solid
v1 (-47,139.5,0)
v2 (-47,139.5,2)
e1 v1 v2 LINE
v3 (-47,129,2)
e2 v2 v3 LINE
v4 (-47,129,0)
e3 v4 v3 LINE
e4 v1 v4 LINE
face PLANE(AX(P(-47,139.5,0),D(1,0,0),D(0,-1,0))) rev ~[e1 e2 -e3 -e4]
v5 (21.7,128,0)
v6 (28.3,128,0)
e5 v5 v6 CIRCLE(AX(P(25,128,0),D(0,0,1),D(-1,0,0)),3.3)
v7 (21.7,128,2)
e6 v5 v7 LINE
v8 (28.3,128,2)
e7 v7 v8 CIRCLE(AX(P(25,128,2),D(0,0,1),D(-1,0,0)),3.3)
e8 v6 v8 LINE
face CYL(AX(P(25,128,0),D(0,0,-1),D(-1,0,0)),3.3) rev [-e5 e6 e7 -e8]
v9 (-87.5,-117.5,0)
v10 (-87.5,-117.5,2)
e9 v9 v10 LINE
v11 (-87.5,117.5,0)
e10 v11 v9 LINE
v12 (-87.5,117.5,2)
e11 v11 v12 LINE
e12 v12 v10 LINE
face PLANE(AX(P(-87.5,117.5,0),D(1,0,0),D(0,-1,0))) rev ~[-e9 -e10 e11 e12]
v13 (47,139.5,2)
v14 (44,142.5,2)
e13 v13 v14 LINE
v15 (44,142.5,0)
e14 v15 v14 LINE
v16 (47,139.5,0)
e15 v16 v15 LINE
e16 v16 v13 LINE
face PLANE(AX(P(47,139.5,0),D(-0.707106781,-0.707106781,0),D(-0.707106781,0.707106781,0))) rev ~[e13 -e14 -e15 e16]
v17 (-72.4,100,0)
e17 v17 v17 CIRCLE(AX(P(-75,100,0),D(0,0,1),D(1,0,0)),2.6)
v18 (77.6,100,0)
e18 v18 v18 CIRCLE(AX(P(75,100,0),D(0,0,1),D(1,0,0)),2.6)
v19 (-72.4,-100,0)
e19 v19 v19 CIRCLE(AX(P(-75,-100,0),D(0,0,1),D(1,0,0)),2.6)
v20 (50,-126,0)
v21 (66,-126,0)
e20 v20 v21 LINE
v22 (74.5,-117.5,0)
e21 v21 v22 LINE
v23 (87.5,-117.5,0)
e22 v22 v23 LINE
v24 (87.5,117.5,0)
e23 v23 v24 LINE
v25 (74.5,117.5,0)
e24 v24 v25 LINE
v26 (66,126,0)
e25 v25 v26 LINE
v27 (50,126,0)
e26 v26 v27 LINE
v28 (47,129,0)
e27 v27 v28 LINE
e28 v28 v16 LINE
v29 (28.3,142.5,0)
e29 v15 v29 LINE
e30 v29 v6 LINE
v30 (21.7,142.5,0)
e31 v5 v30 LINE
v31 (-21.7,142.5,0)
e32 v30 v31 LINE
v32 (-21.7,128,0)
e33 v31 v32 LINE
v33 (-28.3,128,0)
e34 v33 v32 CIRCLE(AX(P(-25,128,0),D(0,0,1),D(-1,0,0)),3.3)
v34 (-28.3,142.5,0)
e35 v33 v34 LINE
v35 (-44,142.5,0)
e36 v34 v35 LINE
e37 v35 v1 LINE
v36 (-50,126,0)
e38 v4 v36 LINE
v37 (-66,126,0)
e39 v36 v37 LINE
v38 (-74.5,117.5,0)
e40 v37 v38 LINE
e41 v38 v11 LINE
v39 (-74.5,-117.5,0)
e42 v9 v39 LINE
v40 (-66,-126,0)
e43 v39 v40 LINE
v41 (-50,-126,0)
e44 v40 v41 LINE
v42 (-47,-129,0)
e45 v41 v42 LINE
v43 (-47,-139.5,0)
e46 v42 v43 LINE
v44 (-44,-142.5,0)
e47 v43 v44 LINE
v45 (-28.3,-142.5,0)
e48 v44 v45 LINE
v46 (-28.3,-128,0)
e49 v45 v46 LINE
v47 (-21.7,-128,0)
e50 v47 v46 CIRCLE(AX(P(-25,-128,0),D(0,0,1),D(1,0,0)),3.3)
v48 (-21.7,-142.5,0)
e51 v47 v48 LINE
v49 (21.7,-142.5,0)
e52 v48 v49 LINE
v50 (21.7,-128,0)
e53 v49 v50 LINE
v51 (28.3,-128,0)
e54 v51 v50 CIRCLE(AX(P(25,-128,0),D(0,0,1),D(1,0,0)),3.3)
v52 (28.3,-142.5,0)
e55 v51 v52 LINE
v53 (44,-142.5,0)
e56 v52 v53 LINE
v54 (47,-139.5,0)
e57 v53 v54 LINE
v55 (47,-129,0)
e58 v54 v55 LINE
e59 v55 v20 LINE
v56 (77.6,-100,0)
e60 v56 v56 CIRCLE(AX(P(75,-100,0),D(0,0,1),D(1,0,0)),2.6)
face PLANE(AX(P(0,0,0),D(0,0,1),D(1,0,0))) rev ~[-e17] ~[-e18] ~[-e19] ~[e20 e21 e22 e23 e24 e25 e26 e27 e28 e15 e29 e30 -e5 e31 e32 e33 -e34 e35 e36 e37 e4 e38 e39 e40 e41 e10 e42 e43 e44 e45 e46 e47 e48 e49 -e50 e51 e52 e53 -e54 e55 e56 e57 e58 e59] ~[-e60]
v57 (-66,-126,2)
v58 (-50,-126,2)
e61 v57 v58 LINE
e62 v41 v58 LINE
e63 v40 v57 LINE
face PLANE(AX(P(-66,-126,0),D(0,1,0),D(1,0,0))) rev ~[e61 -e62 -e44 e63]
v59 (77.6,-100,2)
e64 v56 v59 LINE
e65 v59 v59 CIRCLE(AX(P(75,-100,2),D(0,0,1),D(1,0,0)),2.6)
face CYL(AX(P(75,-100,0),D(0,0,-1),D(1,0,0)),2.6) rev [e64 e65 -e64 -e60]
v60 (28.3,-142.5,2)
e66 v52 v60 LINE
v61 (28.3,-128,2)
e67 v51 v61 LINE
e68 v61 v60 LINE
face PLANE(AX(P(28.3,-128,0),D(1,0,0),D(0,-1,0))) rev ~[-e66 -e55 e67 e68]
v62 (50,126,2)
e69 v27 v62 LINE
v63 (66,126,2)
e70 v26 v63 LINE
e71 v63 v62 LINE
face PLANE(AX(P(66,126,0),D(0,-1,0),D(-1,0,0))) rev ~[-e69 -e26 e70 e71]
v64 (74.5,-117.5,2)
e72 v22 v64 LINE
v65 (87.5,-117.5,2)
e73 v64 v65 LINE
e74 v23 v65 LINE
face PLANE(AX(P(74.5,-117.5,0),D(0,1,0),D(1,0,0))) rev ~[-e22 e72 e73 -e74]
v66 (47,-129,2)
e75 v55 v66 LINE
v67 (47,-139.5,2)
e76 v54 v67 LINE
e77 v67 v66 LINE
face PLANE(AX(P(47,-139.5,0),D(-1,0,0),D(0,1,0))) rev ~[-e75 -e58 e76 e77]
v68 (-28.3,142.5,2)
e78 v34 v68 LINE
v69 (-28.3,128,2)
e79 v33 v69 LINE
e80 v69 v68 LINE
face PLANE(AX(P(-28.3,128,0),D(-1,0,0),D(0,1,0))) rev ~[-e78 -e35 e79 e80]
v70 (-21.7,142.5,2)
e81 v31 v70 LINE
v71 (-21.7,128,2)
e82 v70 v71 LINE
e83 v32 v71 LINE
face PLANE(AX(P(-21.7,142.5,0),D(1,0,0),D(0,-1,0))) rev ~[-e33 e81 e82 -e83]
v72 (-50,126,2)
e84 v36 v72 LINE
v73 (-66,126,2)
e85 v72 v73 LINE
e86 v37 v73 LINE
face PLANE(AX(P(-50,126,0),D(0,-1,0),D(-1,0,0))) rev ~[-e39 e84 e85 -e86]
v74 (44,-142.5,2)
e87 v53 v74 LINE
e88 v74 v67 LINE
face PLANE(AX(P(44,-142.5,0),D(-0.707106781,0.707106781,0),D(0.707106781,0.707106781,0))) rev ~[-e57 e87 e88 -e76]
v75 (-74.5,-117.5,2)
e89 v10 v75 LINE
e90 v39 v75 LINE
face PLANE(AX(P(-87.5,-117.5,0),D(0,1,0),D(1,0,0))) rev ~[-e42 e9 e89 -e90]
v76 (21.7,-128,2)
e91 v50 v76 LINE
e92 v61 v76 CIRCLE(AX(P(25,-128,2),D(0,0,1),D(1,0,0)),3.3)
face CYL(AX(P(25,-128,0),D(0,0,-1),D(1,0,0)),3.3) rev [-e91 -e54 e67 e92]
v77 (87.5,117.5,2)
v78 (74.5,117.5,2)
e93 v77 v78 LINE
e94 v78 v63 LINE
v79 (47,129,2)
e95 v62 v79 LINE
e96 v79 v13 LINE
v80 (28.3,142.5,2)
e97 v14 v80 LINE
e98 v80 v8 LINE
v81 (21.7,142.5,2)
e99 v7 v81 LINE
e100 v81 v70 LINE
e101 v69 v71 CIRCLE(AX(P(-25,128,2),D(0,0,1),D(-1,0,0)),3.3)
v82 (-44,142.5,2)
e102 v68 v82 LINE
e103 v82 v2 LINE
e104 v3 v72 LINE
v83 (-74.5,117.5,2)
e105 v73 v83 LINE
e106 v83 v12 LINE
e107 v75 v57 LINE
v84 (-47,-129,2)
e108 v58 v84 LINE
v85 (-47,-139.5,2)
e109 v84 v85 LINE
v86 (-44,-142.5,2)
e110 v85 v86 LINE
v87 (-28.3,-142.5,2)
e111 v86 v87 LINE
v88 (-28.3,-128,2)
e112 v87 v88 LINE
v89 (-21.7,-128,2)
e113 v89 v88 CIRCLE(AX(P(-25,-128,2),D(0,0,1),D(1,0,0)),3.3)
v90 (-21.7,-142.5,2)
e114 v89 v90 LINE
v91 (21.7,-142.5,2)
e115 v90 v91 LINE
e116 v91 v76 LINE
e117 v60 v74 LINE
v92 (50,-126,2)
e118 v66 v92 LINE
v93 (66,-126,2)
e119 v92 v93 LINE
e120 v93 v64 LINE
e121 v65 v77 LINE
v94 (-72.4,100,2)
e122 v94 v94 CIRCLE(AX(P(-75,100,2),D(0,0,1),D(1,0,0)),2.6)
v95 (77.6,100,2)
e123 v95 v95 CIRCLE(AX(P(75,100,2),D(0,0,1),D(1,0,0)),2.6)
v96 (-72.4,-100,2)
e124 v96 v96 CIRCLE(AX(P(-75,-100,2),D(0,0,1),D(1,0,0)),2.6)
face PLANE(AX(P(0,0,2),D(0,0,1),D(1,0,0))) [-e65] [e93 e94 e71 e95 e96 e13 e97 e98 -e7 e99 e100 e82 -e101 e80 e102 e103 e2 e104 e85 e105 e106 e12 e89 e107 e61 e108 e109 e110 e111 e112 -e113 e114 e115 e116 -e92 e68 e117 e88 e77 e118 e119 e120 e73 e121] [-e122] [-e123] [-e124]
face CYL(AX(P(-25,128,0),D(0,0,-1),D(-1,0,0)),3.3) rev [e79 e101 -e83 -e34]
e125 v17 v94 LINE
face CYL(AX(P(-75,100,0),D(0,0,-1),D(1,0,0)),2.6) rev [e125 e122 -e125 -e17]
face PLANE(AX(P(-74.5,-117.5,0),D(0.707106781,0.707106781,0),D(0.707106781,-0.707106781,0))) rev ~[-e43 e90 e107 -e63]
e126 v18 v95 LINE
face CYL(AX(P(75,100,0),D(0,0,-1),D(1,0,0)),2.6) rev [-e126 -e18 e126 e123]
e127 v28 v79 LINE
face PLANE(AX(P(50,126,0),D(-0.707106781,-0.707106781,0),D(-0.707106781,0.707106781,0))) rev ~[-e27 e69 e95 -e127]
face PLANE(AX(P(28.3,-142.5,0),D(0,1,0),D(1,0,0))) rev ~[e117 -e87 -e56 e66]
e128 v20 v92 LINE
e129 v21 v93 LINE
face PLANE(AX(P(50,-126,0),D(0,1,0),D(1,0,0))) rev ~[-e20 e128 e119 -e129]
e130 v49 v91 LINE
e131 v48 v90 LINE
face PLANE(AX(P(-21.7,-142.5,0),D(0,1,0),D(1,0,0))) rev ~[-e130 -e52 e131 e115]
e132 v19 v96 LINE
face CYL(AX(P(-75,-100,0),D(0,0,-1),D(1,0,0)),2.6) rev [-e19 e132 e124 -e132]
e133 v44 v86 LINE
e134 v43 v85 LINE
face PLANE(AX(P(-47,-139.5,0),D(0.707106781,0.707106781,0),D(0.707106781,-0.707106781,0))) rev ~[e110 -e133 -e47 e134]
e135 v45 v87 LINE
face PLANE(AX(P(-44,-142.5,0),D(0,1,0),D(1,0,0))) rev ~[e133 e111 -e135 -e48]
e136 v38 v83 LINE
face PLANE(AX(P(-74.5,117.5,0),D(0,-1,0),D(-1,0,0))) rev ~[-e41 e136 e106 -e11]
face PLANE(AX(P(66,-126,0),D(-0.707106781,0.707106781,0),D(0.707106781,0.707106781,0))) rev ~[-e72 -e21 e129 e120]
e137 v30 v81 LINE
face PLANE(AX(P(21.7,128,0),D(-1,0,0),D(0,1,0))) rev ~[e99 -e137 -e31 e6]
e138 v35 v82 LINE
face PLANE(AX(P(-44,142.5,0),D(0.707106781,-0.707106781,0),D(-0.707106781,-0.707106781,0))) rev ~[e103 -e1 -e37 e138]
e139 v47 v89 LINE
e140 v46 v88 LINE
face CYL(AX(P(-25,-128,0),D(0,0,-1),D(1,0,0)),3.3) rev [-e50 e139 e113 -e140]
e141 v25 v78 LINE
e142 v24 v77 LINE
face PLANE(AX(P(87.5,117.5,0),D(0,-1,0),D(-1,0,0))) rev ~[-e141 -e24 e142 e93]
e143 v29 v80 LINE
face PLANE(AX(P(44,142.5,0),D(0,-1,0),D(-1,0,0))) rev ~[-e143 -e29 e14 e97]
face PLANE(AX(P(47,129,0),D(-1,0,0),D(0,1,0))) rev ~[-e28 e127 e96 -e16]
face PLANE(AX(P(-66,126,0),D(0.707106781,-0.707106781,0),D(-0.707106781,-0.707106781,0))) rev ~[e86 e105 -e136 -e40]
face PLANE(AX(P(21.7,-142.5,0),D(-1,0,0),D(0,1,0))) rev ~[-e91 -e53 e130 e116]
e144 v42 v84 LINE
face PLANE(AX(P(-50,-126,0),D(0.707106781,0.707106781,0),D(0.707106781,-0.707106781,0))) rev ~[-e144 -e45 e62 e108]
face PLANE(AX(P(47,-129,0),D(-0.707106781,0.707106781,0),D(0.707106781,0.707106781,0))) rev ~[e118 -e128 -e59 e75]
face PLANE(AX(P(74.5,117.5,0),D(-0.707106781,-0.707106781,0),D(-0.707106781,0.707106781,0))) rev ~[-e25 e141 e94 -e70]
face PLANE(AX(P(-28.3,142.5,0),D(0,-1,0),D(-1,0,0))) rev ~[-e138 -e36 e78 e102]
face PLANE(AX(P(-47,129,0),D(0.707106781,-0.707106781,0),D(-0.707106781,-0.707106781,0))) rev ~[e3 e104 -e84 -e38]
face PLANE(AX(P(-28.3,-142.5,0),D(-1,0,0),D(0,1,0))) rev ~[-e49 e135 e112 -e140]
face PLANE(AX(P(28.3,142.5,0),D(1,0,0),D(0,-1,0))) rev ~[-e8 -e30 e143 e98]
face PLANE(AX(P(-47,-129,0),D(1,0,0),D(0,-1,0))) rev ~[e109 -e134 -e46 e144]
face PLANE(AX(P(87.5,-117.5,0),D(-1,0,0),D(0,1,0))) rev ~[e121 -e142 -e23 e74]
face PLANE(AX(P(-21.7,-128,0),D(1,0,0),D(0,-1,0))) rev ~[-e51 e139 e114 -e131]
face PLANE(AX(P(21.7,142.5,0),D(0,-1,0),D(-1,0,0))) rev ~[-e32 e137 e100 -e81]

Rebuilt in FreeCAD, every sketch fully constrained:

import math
import FreeCAD as App
import Part
import Sketcher
Q = App.Units.Quantity

doc = App.newDocument("Part")
body = doc.addObject("PartDesign::Body", "Body")

# Sketch on XY plane
sketch1 = body.newObject("Sketcher::SketchObject", "Sketch")
sketch1.AttachmentSupport = (doc.getObject("XY_Plane"), [""])
sketch1.MapMode = "FlatFace"
sketch1.addGeometry([
    Part.LineSegment(App.Vector(-74.5, 117.5, 0), App.Vector(-87.5, 117.5, 0)),  # 0
    Part.LineSegment(App.Vector(-87.5, 117.5, 0), App.Vector(-87.5, -117.5, 0)),  # 1
    Part.LineSegment(App.Vector(-87.5, -117.5, 0), App.Vector(-74.5, -117.5, 0)),  # 2
    Part.LineSegment(App.Vector(-74.5, -117.5, 0), App.Vector(-66, -126, 0)),  # 3
    Part.LineSegment(App.Vector(-66, -126, 0), App.Vector(-50, -126, 0)),  # 4
    Part.LineSegment(App.Vector(-50, -126, 0), App.Vector(-47, -129, 0)),  # 5
    Part.LineSegment(App.Vector(-47, -129, 0), App.Vector(-47, -139.5, 0)),  # 6
    Part.LineSegment(App.Vector(-47, -139.5, 0), App.Vector(-44, -142.5, 0)),  # 7
    Part.LineSegment(App.Vector(-44, -142.5, 0), App.Vector(-28.3, -142.5, 0)),  # 8
    Part.LineSegment(App.Vector(-28.3, -142.5, 0), App.Vector(-28.3, -128, 0)),  # 9
    Part.ArcOfCircle(Part.Circle(App.Vector(-25, -128, 0), App.Vector(0, 0, 1), 3.3), math.radians(0), math.radians(180)),  # 10
    Part.LineSegment(App.Vector(-21.7, -128, 0), App.Vector(-21.7, -142.5, 0)),  # 11
    Part.LineSegment(App.Vector(-21.7, -142.5, 0), App.Vector(21.7, -142.5, 0)),  # 12
    Part.LineSegment(App.Vector(21.7, -142.5, 0), App.Vector(21.7, -128, 0)),  # 13
    Part.ArcOfCircle(Part.Circle(App.Vector(25, -128, 0), App.Vector(0, 0, 1), 3.3), math.radians(0), math.radians(180)),  # 14
    Part.LineSegment(App.Vector(28.3, -128, 0), App.Vector(28.3, -142.5, 0)),  # 15
    Part.LineSegment(App.Vector(28.3, -142.5, 0), App.Vector(44, -142.5, 0)),  # 16
    Part.LineSegment(App.Vector(44, -142.5, 0), App.Vector(47, -139.5, 0)),  # 17
    Part.LineSegment(App.Vector(47, -139.5, 0), App.Vector(47, -129, 0)),  # 18
    Part.LineSegment(App.Vector(47, -129, 0), App.Vector(50, -126, 0)),  # 19
    Part.LineSegment(App.Vector(50, -126, 0), App.Vector(66, -126, 0)),  # 20
    Part.LineSegment(App.Vector(66, -126, 0), App.Vector(74.5, -117.5, 0)),  # 21
    Part.LineSegment(App.Vector(74.5, -117.5, 0), App.Vector(87.5, -117.5, 0)),  # 22
    Part.LineSegment(App.Vector(87.5, -117.5, 0), App.Vector(87.5, 117.5, 0)),  # 23
    Part.LineSegment(App.Vector(87.5, 117.5, 0), App.Vector(74.5, 117.5, 0)),  # 24
    Part.LineSegment(App.Vector(74.5, 117.5, 0), App.Vector(66, 126, 0)),  # 25
    Part.LineSegment(App.Vector(66, 126, 0), App.Vector(50, 126, 0)),  # 26
    Part.LineSegment(App.Vector(50, 126, 0), App.Vector(47, 129, 0)),  # 27
    Part.LineSegment(App.Vector(47, 129, 0), App.Vector(47, 139.5, 0)),  # 28
    Part.LineSegment(App.Vector(47, 139.5, 0), App.Vector(44, 142.5, 0)),  # 29
    Part.LineSegment(App.Vector(44, 142.5, 0), App.Vector(28.3, 142.5, 0)),  # 30
    Part.LineSegment(App.Vector(28.3, 142.5, 0), App.Vector(28.3, 128, 0)),  # 31
    Part.ArcOfCircle(Part.Circle(App.Vector(25, 128, 0), App.Vector(0, 0, 1), 3.3), math.radians(180), math.radians(360)),  # 32
    Part.LineSegment(App.Vector(21.7, 128, 0), App.Vector(21.7, 142.5, 0)),  # 33
    Part.LineSegment(App.Vector(21.7, 142.5, 0), App.Vector(-21.7, 142.5, 0)),  # 34
    Part.LineSegment(App.Vector(-21.7, 142.5, 0), App.Vector(-21.7, 128, 0)),  # 35
    Part.ArcOfCircle(Part.Circle(App.Vector(-25, 128, 0), App.Vector(0, 0, 1), 3.3), math.radians(180), math.radians(360)),  # 36
    Part.LineSegment(App.Vector(-28.3, 128, 0), App.Vector(-28.3, 142.5, 0)),  # 37
    Part.LineSegment(App.Vector(-28.3, 142.5, 0), App.Vector(-44, 142.5, 0)),  # 38
    Part.LineSegment(App.Vector(-44, 142.5, 0), App.Vector(-47, 139.5, 0)),  # 39
    Part.LineSegment(App.Vector(-47, 139.5, 0), App.Vector(-47, 129, 0)),  # 40
    Part.LineSegment(App.Vector(-47, 129, 0), App.Vector(-50, 126, 0)),  # 41
    Part.LineSegment(App.Vector(-50, 126, 0), App.Vector(-66, 126, 0)),  # 42
    Part.LineSegment(App.Vector(-66, 126, 0), App.Vector(-74.5, 117.5, 0)),  # 43
    Part.Circle(App.Vector(-75, -100, 0), App.Vector(0, 0, 1), 2.6),  # 44
    Part.Circle(App.Vector(75, -100, 0), App.Vector(0, 0, 1), 2.6),  # 45
    Part.Circle(App.Vector(-75, 100, 0), App.Vector(0, 0, 1), 2.6),  # 46
    Part.Circle(App.Vector(75, 100, 0), App.Vector(0, 0, 1), 2.6),  # 47
], False)
sketch1.addConstraint([
    Sketcher.Constraint("Coincident", 0, 2, 1, 1),
    Sketcher.Constraint("Coincident", 1, 2, 2, 1),
    Sketcher.Constraint("Coincident", 2, 2, 3, 1),
    Sketcher.Constraint("Coincident", 3, 2, 4, 1),
    Sketcher.Constraint("Coincident", 4, 2, 5, 1),
    Sketcher.Constraint("Coincident", 5, 2, 6, 1),
    Sketcher.Constraint("Coincident", 6, 2, 7, 1),
    Sketcher.Constraint("Coincident", 7, 2, 8, 1),
    Sketcher.Constraint("Coincident", 8, 2, 9, 1),
    Sketcher.Constraint("Tangent", 9, 2, 10, 2),
    Sketcher.Constraint("Tangent", 10, 1, 11, 1),
    Sketcher.Constraint("Coincident", 11, 2, 12, 1),
    Sketcher.Constraint("Coincident", 12, 2, 13, 1),
    Sketcher.Constraint("Tangent", 13, 2, 14, 2),
    Sketcher.Constraint("Tangent", 14, 1, 15, 1),
    Sketcher.Constraint("Coincident", 15, 2, 16, 1),
    Sketcher.Constraint("Coincident", 16, 2, 17, 1),
    Sketcher.Constraint("Coincident", 17, 2, 18, 1),
    Sketcher.Constraint("Coincident", 18, 2, 19, 1),
    Sketcher.Constraint("Coincident", 19, 2, 20, 1),
    Sketcher.Constraint("Coincident", 20, 2, 21, 1),
    Sketcher.Constraint("Coincident", 21, 2, 22, 1),
    Sketcher.Constraint("Coincident", 22, 2, 23, 1),
    Sketcher.Constraint("Coincident", 23, 2, 24, 1),
    Sketcher.Constraint("Coincident", 24, 2, 25, 1),
    Sketcher.Constraint("Coincident", 25, 2, 26, 1),
    Sketcher.Constraint("Coincident", 26, 2, 27, 1),
    Sketcher.Constraint("Coincident", 27, 2, 28, 1),
    Sketcher.Constraint("Coincident", 28, 2, 29, 1),
    Sketcher.Constraint("Coincident", 29, 2, 30, 1),
    Sketcher.Constraint("Coincident", 30, 2, 31, 1),
    Sketcher.Constraint("Tangent", 31, 2, 32, 2),
    Sketcher.Constraint("Tangent", 32, 1, 33, 1),
    Sketcher.Constraint("Coincident", 33, 2, 34, 1),
    Sketcher.Constraint("Coincident", 34, 2, 35, 1),
    Sketcher.Constraint("Tangent", 35, 2, 36, 2),
    Sketcher.Constraint("Tangent", 36, 1, 37, 1),
    Sketcher.Constraint("Coincident", 37, 2, 38, 1),
    Sketcher.Constraint("Coincident", 38, 2, 39, 1),
    Sketcher.Constraint("Coincident", 39, 2, 40, 1),
    Sketcher.Constraint("Coincident", 40, 2, 41, 1),
    Sketcher.Constraint("Coincident", 41, 2, 42, 1),
    Sketcher.Constraint("Coincident", 42, 2, 43, 1),
    Sketcher.Constraint("Coincident", 43, 2, 0, 1),
    Sketcher.Constraint("Horizontal", 0),
    Sketcher.Constraint("Vertical", 1),
    Sketcher.Constraint("Horizontal", 2),
    Sketcher.Constraint("Horizontal", 4),
    Sketcher.Constraint("Vertical", 6),
    Sketcher.Constraint("Horizontal", 8),
    Sketcher.Constraint("Vertical", 9),
    Sketcher.Constraint("Vertical", 11),
    Sketcher.Constraint("Horizontal", 12),
    Sketcher.Constraint("Vertical", 13),
    Sketcher.Constraint("Vertical", 15),
    Sketcher.Constraint("Horizontal", 16),
    Sketcher.Constraint("Vertical", 18),
    Sketcher.Constraint("Horizontal", 20),
    Sketcher.Constraint("Horizontal", 22),
    Sketcher.Constraint("Vertical", 23),
    Sketcher.Constraint("Horizontal", 24),
    Sketcher.Constraint("Horizontal", 26),
    Sketcher.Constraint("Vertical", 28),
    Sketcher.Constraint("Horizontal", 30),
    Sketcher.Constraint("Vertical", 31),
    Sketcher.Constraint("Vertical", 33),
    Sketcher.Constraint("Horizontal", 34),
    Sketcher.Constraint("Vertical", 35),
    Sketcher.Constraint("Vertical", 37),
    Sketcher.Constraint("Horizontal", 38),
    Sketcher.Constraint("Vertical", 40),
    Sketcher.Constraint("Horizontal", 42),
    Sketcher.Constraint("Equal", 10, 14),
    Sketcher.Constraint("Equal", 14, 32),
    Sketcher.Constraint("Equal", 32, 36),
    Sketcher.Constraint("Equal", 44, 45),
    Sketcher.Constraint("Equal", 45, 46),
    Sketcher.Constraint("Equal", 46, 47),
    Sketcher.Constraint("Symmetric", 10, 3, 32, 3, -1, 1),
    Sketcher.Constraint("Symmetric", 14, 3, 36, 3, -1, 1),
    Sketcher.Constraint("Symmetric", 45, 3, 46, 3, -1, 1),
    Sketcher.Constraint("Symmetric", 44, 3, 47, 3, -1, 1),
    Sketcher.Constraint("Symmetric", 0, 2, 22, 2, -1, 1),
    Sketcher.Constraint("Symmetric", 2, 2, 24, 2, -1, 1),
    Sketcher.Constraint("Symmetric", 3, 2, 25, 2, -1, 1),
    Sketcher.Constraint("Symmetric", 5, 2, 27, 2, -1, 1),
    Sketcher.Constraint("Symmetric", 7, 2, 29, 2, -1, 1),
    Sketcher.Constraint("Symmetric", 16, 2, 38, 2, -1, 1),
    Sketcher.Constraint("Symmetric", 17, 2, 39, 2, -1, 1),
    Sketcher.Constraint("Symmetric", 19, 2, 41, 2, -1, 1),
    Sketcher.Constraint("Symmetric", 10, 3, 14, 3, -2),
    Sketcher.Constraint("Symmetric", 44, 3, 45, 3, -2),
    Sketcher.Constraint("Symmetric", 7, 2, 16, 2, -2),
    Sketcher.Constraint("Symmetric", 6, 2, 17, 2, -2),
    Sketcher.Constraint("Symmetric", 4, 2, 19, 2, -2),
    Sketcher.Constraint("Symmetric", 2, 2, 21, 2, -2),
    Sketcher.Constraint("Parallel", 3, 5),
    Sketcher.Constraint("Parallel", 5, 7),
    Sketcher.Constraint("Perpendicular", 7, 17),
    Sketcher.Constraint("Parallel", 17, 19),
    Sketcher.Constraint("Parallel", 19, 21),
    Sketcher.Constraint("Parallel", 25, 27),
    Sketcher.Constraint("Parallel", 27, 29),
    Sketcher.Constraint("Parallel", 39, 41),
    Sketcher.Constraint("Parallel", 41, 43),
    Sketcher.Constraint("Horizontal", 8, 2, 11, 2),
    Sketcher.Constraint("Horizontal", 30, 2, 33, 2),
    Sketcher.Constraint("Vertical", 3, 2, 42, 2),
    Sketcher.Constraint("Equal", 5, 7),
    Sketcher.Constraint("Diameter", 44, Q("5.2 mm")),
    Sketcher.Constraint("Radius", 10, Q("3.3 mm")),
    Sketcher.Constraint("DistanceX", 0, 2, 0, 1, Q("13 mm")),
    Sketcher.Constraint("DistanceX", 4, 1, 4, 2, Q("16 mm")),
    Sketcher.Constraint("DistanceY", 1, 2, 1, 1, Q("235 mm")),
    Sketcher.Constraint("DistanceX", 8, 1, 8, 2, Q("15.7 mm")),
    Sketcher.Constraint("DistanceX", 12, 1, 12, 2, Q("43.4 mm")),
    Sketcher.Constraint("DistanceY", 6, 2, 6, 1, Q("10.5 mm")),
    Sketcher.Constraint("DistanceY", 9, 1, 9, 2, Q("14.5 mm")),
    Sketcher.Constraint("DistanceY", 10, 3, -1, 1, Q("128 mm")),
    Sketcher.Constraint("DistanceX", 44, 3, -1, 1, Q("75 mm")),
    Sketcher.Constraint("DistanceY", 44, 3, -1, 1, Q("100 mm")),
    Sketcher.Constraint("DistanceX", 3, 2, -1, 1, Q("66 mm")),
])
pad1 = body.newObject("PartDesign::Pad", "Pad")
pad1.Profile = sketch1
pad1.Length = 2

doc.recompute()
